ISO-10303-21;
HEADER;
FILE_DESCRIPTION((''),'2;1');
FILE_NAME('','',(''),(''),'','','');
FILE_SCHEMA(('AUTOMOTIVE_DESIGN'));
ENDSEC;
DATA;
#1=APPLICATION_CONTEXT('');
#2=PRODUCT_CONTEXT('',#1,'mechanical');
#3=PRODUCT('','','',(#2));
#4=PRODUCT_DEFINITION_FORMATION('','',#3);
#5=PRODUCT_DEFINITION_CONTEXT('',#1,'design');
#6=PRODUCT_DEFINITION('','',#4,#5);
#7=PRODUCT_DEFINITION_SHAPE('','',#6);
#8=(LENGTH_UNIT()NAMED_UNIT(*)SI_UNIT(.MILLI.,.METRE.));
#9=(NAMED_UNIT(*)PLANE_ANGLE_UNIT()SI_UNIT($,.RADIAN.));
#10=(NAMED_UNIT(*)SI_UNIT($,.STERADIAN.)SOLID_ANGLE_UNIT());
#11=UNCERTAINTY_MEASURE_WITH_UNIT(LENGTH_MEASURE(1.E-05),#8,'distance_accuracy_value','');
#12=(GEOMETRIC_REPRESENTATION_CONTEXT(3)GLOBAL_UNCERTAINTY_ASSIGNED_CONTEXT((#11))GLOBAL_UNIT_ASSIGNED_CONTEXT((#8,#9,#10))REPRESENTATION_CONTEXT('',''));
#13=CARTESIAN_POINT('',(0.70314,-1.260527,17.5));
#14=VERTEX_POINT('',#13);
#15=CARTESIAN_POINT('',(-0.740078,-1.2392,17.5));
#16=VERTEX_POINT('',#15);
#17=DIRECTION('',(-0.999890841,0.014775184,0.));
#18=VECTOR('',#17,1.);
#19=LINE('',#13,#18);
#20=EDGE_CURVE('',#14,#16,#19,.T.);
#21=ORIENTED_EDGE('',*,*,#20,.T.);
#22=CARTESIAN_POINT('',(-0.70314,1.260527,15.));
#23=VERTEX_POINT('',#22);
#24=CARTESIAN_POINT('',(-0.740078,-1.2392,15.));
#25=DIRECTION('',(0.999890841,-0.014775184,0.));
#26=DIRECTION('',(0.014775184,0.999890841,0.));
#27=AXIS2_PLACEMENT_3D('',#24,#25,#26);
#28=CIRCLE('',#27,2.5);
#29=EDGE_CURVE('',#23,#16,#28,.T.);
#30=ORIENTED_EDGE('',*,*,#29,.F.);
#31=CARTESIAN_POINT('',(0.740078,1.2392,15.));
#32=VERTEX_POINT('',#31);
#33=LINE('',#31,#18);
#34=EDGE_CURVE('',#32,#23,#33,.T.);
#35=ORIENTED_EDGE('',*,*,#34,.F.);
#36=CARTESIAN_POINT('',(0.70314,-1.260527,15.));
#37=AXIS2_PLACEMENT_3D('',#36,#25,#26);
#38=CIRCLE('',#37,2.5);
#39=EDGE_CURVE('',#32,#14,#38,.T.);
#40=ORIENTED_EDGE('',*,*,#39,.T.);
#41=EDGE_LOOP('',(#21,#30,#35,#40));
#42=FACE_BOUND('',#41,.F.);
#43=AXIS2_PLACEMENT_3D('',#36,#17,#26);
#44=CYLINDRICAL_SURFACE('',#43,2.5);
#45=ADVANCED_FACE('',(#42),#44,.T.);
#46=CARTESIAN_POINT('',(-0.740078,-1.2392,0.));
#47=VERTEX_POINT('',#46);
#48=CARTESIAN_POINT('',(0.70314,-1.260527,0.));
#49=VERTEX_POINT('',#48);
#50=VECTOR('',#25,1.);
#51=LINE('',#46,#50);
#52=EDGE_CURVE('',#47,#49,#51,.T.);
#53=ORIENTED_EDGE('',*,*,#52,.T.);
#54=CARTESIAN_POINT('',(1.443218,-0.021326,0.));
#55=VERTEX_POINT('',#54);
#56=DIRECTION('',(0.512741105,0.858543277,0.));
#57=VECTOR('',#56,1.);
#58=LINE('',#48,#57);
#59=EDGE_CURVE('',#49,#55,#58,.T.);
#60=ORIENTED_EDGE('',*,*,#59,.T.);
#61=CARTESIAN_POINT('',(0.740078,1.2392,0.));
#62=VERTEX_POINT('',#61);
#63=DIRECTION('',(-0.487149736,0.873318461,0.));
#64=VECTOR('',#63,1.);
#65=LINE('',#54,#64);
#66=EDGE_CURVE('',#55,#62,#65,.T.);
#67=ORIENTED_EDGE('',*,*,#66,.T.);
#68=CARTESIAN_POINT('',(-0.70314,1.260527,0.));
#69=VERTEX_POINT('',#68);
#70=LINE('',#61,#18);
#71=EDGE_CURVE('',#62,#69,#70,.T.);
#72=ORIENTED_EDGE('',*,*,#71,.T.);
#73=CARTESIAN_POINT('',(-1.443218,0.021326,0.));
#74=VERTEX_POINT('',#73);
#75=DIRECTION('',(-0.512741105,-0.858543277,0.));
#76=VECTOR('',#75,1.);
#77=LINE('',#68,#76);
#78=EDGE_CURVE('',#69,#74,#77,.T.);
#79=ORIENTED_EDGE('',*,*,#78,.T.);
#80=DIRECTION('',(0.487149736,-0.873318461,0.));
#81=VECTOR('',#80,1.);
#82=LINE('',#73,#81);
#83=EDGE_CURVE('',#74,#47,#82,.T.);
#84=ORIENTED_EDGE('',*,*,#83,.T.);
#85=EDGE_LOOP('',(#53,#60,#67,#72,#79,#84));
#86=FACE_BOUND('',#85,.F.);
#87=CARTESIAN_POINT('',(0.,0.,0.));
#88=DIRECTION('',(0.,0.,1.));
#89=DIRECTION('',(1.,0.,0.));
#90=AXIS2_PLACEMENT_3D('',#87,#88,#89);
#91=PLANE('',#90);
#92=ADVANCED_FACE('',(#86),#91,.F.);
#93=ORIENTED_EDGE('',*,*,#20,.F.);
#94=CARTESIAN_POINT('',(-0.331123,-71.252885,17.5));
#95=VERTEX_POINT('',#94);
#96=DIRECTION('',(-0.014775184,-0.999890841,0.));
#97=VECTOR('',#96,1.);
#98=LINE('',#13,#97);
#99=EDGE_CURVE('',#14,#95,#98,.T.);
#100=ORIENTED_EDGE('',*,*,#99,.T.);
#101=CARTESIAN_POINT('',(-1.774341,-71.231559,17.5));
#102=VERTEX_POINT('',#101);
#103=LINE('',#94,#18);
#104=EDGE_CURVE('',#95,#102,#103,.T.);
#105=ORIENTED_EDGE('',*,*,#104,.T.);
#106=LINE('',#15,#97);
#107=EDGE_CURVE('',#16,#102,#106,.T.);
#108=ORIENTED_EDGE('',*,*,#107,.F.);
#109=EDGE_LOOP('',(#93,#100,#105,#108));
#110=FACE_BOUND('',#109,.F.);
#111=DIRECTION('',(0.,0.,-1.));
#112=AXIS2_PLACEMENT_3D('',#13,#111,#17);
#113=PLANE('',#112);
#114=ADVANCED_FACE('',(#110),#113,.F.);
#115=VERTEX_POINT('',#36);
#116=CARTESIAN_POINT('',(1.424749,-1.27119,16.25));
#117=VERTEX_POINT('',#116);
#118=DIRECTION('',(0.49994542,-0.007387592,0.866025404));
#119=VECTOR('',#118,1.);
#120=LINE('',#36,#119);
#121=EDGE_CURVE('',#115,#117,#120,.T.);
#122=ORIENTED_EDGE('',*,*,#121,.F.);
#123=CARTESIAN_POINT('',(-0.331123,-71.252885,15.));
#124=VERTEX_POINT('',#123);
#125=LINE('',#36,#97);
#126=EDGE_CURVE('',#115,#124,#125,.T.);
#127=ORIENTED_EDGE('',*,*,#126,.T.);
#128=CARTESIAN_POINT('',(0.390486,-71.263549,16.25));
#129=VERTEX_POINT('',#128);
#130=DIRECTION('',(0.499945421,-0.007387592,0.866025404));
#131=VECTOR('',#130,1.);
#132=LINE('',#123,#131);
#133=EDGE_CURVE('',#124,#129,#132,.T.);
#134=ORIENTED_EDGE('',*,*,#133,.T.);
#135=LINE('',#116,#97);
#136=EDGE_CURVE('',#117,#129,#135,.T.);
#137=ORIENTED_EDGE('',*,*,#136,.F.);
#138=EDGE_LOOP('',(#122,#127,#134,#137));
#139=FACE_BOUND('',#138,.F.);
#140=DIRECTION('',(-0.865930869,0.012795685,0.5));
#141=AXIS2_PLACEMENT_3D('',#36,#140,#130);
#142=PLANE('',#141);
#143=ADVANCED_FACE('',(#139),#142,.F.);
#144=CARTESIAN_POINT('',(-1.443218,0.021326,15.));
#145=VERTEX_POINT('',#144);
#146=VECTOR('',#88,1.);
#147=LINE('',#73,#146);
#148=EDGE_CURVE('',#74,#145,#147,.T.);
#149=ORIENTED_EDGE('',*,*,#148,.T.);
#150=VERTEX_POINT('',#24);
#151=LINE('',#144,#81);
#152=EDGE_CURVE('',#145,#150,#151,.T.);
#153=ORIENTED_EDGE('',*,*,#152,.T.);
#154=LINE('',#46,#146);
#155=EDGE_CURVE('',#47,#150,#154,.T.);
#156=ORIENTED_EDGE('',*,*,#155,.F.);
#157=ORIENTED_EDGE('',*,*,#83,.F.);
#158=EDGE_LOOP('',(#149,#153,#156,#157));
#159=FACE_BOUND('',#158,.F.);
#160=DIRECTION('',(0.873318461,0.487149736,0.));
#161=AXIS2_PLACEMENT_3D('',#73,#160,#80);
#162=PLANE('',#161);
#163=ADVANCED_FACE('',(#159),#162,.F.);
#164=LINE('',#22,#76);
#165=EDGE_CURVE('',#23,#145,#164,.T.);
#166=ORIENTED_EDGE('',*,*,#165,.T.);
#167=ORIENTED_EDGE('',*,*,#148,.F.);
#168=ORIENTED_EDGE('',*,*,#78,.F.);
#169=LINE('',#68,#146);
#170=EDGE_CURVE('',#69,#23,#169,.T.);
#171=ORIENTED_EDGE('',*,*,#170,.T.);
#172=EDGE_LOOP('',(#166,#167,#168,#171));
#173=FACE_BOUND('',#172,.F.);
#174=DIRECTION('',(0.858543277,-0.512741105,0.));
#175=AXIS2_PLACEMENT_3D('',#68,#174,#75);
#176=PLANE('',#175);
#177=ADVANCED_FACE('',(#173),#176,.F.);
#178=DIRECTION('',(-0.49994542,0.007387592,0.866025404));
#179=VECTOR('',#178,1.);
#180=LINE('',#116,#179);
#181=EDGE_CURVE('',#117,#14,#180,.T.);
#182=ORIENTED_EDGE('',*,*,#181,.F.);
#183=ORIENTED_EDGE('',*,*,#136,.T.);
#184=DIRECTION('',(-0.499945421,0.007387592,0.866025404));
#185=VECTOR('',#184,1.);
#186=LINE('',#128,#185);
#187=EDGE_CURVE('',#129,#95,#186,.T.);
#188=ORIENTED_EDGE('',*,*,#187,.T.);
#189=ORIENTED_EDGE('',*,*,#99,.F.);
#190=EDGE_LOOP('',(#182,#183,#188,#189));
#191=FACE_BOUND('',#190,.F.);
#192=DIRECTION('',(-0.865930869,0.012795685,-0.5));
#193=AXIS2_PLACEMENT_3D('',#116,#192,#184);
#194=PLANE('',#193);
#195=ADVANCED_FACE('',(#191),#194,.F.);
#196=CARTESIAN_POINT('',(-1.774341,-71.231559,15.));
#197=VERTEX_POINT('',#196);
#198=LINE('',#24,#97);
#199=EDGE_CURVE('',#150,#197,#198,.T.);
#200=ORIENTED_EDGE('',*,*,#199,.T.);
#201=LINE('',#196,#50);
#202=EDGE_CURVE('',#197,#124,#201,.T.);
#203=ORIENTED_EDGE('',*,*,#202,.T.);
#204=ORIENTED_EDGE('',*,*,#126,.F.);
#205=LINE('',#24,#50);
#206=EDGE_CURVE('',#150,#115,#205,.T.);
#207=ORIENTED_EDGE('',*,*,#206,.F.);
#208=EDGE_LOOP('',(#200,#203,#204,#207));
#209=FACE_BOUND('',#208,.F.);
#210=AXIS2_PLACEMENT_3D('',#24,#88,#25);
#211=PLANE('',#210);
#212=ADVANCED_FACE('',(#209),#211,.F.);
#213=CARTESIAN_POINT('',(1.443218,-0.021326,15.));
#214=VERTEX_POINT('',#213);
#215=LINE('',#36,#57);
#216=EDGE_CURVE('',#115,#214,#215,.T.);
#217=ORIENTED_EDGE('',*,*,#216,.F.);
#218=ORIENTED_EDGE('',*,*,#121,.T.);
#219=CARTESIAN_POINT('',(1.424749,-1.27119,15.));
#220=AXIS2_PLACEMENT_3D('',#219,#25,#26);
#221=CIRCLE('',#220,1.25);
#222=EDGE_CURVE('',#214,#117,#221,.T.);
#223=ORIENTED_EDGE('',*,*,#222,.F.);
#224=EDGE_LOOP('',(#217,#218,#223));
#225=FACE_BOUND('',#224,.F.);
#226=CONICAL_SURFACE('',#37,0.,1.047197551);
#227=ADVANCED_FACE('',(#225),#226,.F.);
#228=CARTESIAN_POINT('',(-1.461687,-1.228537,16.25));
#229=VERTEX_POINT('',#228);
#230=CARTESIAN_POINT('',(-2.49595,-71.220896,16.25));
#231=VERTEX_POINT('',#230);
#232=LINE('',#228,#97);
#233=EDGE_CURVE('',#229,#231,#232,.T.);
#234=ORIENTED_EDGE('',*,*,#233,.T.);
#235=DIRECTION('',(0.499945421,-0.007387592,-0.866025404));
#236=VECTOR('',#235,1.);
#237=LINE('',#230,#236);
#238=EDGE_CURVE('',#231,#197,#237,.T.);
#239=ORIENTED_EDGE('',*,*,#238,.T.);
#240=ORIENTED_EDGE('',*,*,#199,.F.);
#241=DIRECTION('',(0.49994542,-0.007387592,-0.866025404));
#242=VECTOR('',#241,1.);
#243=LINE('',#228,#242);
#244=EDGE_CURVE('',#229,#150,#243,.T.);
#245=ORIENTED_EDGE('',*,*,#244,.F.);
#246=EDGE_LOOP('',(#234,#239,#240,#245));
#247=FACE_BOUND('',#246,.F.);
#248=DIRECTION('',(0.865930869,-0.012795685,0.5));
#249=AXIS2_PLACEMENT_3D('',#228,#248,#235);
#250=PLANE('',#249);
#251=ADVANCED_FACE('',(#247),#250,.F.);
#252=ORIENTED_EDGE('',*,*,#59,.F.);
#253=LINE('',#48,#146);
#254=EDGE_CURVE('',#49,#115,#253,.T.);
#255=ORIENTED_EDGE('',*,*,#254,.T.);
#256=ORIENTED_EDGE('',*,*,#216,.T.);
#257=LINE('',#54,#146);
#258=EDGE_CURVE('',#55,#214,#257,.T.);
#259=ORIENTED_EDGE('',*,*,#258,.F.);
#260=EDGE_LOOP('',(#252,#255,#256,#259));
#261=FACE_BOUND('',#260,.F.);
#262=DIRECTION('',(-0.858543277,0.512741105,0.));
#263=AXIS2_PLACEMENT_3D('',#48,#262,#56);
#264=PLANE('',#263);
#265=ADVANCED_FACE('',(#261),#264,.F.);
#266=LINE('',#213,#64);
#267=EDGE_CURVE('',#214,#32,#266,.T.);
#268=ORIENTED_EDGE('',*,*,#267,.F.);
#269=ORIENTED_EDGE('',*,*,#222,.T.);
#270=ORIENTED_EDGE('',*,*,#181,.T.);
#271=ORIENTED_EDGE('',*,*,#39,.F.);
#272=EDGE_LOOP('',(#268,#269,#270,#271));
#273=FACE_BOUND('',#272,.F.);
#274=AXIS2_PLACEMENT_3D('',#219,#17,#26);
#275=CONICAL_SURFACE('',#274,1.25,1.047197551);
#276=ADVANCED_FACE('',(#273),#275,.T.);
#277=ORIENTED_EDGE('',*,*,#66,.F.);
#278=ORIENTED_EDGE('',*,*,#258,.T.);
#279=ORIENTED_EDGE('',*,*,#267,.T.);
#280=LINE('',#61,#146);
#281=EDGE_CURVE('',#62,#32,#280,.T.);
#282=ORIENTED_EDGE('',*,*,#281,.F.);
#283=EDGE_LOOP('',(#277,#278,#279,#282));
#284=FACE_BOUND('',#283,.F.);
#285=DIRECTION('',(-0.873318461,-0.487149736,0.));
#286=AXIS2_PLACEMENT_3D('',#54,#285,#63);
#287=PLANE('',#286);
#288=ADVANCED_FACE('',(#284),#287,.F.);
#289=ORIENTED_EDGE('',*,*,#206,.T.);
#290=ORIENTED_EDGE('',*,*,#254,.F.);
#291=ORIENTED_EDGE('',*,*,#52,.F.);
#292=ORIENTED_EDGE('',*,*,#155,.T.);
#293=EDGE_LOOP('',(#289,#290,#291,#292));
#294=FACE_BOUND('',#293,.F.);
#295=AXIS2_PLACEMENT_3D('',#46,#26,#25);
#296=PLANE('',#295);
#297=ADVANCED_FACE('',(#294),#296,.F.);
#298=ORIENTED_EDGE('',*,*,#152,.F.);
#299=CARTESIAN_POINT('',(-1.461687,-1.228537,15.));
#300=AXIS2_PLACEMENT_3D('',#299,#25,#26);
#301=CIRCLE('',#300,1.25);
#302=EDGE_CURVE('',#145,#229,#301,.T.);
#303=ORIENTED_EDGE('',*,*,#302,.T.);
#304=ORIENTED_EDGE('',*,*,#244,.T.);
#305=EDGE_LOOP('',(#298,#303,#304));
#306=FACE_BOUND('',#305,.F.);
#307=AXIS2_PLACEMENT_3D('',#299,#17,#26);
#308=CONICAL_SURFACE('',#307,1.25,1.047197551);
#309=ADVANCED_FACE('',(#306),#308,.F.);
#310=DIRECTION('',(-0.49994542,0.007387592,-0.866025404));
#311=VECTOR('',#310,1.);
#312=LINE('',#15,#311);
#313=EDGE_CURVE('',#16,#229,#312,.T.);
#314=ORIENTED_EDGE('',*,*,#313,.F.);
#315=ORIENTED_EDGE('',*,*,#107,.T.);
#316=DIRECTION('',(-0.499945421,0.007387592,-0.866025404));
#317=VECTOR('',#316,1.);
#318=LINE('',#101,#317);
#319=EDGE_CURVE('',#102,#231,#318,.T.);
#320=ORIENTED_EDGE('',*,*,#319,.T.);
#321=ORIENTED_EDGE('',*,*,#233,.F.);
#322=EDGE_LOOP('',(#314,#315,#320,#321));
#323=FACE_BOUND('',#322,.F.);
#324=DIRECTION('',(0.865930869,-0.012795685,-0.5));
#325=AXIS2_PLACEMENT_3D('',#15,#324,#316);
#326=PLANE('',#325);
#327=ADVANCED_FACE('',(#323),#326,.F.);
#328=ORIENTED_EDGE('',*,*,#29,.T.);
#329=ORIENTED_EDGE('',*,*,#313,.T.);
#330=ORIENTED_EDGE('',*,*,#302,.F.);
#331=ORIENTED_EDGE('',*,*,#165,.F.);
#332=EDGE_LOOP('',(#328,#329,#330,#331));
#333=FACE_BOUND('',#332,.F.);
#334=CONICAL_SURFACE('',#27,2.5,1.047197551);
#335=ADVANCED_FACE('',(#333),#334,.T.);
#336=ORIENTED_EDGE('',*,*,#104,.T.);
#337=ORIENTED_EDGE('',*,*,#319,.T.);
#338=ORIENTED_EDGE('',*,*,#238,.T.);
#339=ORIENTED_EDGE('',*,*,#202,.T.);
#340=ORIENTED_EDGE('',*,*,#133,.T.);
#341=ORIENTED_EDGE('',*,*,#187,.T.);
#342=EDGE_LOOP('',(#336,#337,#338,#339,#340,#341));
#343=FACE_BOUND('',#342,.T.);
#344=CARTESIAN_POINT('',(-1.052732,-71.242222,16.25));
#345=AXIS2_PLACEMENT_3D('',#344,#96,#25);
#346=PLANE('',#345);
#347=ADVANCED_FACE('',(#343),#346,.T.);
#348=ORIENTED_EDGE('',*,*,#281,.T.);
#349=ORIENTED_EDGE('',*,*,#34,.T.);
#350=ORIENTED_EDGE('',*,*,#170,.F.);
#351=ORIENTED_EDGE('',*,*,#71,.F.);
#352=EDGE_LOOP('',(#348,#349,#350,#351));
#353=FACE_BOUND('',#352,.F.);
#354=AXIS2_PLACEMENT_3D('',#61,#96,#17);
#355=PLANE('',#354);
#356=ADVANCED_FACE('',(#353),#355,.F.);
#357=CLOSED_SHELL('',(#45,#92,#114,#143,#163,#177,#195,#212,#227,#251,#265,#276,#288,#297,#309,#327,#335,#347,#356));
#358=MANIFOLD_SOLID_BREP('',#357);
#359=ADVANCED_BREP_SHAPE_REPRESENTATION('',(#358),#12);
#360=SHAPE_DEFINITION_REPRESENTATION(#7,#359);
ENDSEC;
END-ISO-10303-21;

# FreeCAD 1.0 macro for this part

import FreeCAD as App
import Part
import Sketcher
from FreeCAD import Vector
Q = App.Units.Quantity


def add_polygon(sketch, points):
    """Adds a closed chain of lines whose ends are joined by coincident constraints."""
    first, n = sketch.GeometryCount, len(points)
    for a, b in zip(points, points[1:] + points[:1]):
        sketch.addGeometry(Part.LineSegment(App.Vector(*a, 0), App.Vector(*b, 0)), False)
    for i in range(n):
        sketch.addConstraint(Sketcher.Constraint("Coincident", first + i, 2, first + (i + 1) % n, 1))

doc = App.newDocument("Part")
params = doc.addObject("Spreadsheet::Sheet", "Params")
for row, (alias, value) in enumerate([
    ("pad1_length", "15 mm"),
    ("revolution_angle", "90 deg"),
    ("pad2_length", "70 mm"),
], start=1):
    params.set(f"A{row}", alias)
    params.set(f"B{row}", "=" + value)
    params.setAlias(f"B{row}", alias)

body = doc.addObject("PartDesign::Body", "Body")

# Sketch on XY plane
sketch1 = body.newObject("Sketcher::SketchObject", "Sketch")
sketch1.AttachmentSupport = (doc.getObject("XY_Plane"), [""])
sketch1.MapMode = "FlatFace"
add_polygon(sketch1, [(0.7, -1.3), (1.4, 0), (0.7, 1.2), (-0.7, 1.3), (-1.4, 0), (-0.7, -1.2)])  # lines 0-5
sketch1.addConstraint(Sketcher.Constraint("Symmetric", 0, 2, 3, 2, -1, 1))
sketch1.addConstraint(Sketcher.Constraint("Symmetric", 1, 2, 4, 2, -1, 1))
sketch1.addConstraint(Sketcher.Constraint("Symmetric", 2, 2, 5, 2, -1, 1))
sketch1.addConstraint(Sketcher.Constraint("Equal", 0, 1))
sketch1.addConstraint(Sketcher.Constraint("Equal", 1, 2))
sketch1.addConstraint(Sketcher.Constraint("DistanceY", -1, 1, 1, 2, Q("1.2392 mm")))
sketch1.addConstraint(Sketcher.Constraint("DistanceY", 3, 2, 2, 2, Q("1.2392 mm")))
sketch1.addConstraint(Sketcher.Constraint("DistanceX", -1, 1, 0, 2, Q("1.443218 mm")))
sketch1.addConstraint(Sketcher.Constraint("DistanceX", -1, 1, 1, 2, Q("0.740078 mm")))
pad1 = body.newObject("PartDesign::Pad", "Pad")
pad1.Profile = sketch1
pad1.setExpression("Length", "Params.pad1_length")

# Sketch on XY plane
sketch2 = body.newObject("Sketcher::SketchObject", "Sketch001")
sketch2.AttachmentSupport = (doc.getObject("XY_Plane"), [""])
sketch2.MapMode = "FlatFace"
sketch2.AttachmentOffset = App.Placement(Vector(0, 0, 15), App.Rotation())
add_polygon(sketch2, [(-1.4, 0), (-0.7, -1.2), (0.7, -1.3), (1.4, 0), (0.7, 1.2), (-0.7, 1.3)])  # lines 0-5
sketch2.addGeometry(Part.LineSegment(Vector(-1.5, -1.2, 0), Vector(1.4, -1.3, 0)), True)  # axis
sketch2.addConstraint(Sketcher.Constraint("Symmetric", 0, 2, 3, 2, -1, 1))
sketch2.addConstraint(Sketcher.Constraint("Symmetric", 1, 2, 4, 2, -1, 1))
sketch2.addConstraint(Sketcher.Constraint("Symmetric", 2, 2, 5, 2, -1, 1))
sketch2.addConstraint(Sketcher.Constraint("Parallel", 4, 6))
sketch2.addConstraint(Sketcher.Constraint("Equal", 0, 1))
sketch2.addConstraint(Sketcher.Constraint("Equal", 1, 2))
sketch2.addConstraint(Sketcher.Constraint("DistanceY", 0, 2, -1, 1, Q("1.2392 mm")))
sketch2.addConstraint(Sketcher.Constraint("DistanceY", 1, 2, 2, 2, Q("1.2392 mm")))
sketch2.addConstraint(Sketcher.Constraint("Distance", 6, Q("2.886751 mm")))
sketch2.addConstraint(Sketcher.Constraint("DistanceX", 0, 2, -1, 1, Q("0.740078 mm")))
sketch2.addConstraint(Sketcher.Constraint("DistanceX", -1, 1, 1, 2, Q("0.70314 mm")))
sketch2.addConstraint(Sketcher.Constraint("DistanceX", -1, 1, 6, 2, Q("1.424749 mm")))
sketch2.addConstraint(Sketcher.Constraint("DistanceY", 6, 2, -1, 1, Q("1.27119 mm")))
revolution = body.newObject("PartDesign::Revolution", "Revolution")
revolution.Profile = sketch2
revolution.ReferenceAxis = (sketch2, ["Axis0"])
revolution.setExpression("Angle", "Params.revolution_angle")

# Sketch on an angled plane
sketch3 = body.newObject("Sketcher::SketchObject", "Sketch002")
sketch3.Placement = App.Placement(Vector(-0.018469, -1.249864, 0), App.Rotation(Vector(0.999890841, -0.014775184, 0), Vector(0, 0, 1), Vector(-0.014775184, -0.999890841, 0), "ZXY"))
add_polygon(sketch3, [(-0.7, 15), (0.7, 15), (1.4, 16.2), (0.7, 17.5), (-0.7, 17.5), (-1.4, 16.2)])  # lines 0-5
sketch3.addConstraint(Sketcher.Constraint("Horizontal", 0))
sketch3.addConstraint(Sketcher.Constraint("Horizontal", 3))
sketch3.addConstraint(Sketcher.Constraint("Symmetric", 1, 2, 4, 2, -2))
sketch3.addConstraint(Sketcher.Constraint("Parallel", 1, 4))
sketch3.addConstraint(Sketcher.Constraint("Parallel", 2, 5))
sketch3.addConstraint(Sketcher.Constraint("Vertical", 0, 2, 2, 2))
sketch3.addConstraint(Sketcher.Constraint("Vertical", 3, 2, 5, 2))
sketch3.addConstraint(Sketcher.Constraint("Angle", 1, Q("60 deg")))
sketch3.addConstraint(Sketcher.Constraint("DistanceY", -1, 1, 0, 2, Q("15 mm")))
sketch3.addConstraint(Sketcher.Constraint("DistanceY", -1, 1, 2, 2, Q("17.5 mm")))
sketch3.addConstraint(Sketcher.Constraint("DistanceX", 0, 1, 0, 2, Q("1.443376 mm")))
pad2 = body.newObject("PartDesign::Pad", "Pad001")
pad2.Profile = sketch3
pad2.setExpression("Length", "Params.pad2_length")

doc.recompute()
